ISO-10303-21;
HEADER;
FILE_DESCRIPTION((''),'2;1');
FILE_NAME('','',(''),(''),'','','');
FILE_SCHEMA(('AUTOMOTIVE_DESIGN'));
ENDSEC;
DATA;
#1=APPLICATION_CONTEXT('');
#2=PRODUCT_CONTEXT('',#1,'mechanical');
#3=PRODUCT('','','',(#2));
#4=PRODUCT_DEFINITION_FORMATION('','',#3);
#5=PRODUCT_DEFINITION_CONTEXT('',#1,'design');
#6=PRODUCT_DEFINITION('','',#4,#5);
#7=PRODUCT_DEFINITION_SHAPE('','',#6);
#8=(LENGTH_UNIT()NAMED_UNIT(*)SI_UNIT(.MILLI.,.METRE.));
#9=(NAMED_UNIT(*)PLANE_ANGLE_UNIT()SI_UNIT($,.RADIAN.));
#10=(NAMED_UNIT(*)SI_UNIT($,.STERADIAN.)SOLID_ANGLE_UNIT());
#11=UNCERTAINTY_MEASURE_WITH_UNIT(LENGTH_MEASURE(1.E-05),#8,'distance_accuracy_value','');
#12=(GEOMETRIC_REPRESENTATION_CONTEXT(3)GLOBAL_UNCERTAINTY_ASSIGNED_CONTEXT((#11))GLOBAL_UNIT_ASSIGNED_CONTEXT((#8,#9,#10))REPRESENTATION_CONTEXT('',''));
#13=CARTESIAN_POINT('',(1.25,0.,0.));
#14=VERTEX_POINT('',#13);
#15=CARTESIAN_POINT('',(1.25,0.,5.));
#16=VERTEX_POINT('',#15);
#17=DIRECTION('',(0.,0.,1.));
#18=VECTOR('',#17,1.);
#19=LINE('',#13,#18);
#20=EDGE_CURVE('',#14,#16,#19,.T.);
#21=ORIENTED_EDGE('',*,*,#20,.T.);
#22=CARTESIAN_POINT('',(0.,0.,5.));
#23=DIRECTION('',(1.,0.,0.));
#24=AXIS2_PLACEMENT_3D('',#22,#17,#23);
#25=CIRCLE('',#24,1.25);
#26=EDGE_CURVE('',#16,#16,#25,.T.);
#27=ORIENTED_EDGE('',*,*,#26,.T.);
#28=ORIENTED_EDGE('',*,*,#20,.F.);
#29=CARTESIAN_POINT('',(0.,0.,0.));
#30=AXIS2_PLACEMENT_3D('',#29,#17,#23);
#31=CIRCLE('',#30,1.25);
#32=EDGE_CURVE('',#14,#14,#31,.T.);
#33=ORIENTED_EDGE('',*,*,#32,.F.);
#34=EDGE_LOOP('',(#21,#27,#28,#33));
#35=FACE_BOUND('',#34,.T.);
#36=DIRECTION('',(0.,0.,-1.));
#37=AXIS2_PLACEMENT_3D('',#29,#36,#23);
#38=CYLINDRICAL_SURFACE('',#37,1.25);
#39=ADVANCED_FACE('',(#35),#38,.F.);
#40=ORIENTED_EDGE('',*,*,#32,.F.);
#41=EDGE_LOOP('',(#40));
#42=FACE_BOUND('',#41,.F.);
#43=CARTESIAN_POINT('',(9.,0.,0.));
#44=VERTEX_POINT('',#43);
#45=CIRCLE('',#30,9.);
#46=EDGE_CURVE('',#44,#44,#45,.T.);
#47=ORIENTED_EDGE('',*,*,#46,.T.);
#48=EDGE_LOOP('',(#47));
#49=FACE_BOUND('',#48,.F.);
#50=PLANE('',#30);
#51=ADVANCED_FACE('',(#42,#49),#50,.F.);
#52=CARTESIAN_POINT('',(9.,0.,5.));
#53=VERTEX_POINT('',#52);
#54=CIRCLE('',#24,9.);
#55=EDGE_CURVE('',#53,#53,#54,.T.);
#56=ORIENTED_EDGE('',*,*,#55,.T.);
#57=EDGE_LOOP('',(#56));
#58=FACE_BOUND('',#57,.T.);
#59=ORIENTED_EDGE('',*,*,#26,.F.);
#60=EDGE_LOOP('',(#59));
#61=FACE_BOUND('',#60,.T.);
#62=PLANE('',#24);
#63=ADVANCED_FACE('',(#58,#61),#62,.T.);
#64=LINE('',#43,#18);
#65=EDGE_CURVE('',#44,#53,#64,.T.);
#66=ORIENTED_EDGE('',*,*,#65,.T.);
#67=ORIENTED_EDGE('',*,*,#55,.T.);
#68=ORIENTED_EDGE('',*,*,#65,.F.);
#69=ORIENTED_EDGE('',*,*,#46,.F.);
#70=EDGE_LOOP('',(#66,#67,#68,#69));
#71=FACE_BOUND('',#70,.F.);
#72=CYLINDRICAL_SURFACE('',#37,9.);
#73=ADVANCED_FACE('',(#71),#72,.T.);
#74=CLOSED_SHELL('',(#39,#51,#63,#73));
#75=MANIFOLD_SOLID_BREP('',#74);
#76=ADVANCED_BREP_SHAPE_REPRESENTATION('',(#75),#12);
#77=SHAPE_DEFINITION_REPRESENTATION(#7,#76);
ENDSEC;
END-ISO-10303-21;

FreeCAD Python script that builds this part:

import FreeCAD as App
import Part
import Sketcher
from FreeCAD import Vector

doc = App.newDocument("Part")
body = doc.addObject("PartDesign::Body", "Body")

sketch1 = body.newObject("Sketcher::SketchObject", "Sketch")
sketch1.AttachmentSupport = (doc.getObject("XY_Plane"), [""])
sketch1.MapMode = "FlatFace"
sketch1.addGeometry(Part.Circle(Vector(0, 0, 0), Vector(0, 0, 1), 9), False)
sketch1.addGeometry(Part.Circle(Vector(0, 0, 0), Vector(0, 0, 1), 1.2), False)
sketch1.addConstraint(Sketcher.Constraint("Coincident", 0, 3, -1, 1))
sketch1.addConstraint(Sketcher.Constraint("Coincident", 1, 3, -1, 1))
sketch1.addConstraint(Sketcher.Constraint("Diameter", 0, 18.0))
sketch1.addConstraint(Sketcher.Constraint("Diameter", 1, 2.5))
pad1 = body.newObject("PartDesign::Pad", "Pad")
pad1.Profile = sketch1
pad1.Length = 5

doc.recompute()
